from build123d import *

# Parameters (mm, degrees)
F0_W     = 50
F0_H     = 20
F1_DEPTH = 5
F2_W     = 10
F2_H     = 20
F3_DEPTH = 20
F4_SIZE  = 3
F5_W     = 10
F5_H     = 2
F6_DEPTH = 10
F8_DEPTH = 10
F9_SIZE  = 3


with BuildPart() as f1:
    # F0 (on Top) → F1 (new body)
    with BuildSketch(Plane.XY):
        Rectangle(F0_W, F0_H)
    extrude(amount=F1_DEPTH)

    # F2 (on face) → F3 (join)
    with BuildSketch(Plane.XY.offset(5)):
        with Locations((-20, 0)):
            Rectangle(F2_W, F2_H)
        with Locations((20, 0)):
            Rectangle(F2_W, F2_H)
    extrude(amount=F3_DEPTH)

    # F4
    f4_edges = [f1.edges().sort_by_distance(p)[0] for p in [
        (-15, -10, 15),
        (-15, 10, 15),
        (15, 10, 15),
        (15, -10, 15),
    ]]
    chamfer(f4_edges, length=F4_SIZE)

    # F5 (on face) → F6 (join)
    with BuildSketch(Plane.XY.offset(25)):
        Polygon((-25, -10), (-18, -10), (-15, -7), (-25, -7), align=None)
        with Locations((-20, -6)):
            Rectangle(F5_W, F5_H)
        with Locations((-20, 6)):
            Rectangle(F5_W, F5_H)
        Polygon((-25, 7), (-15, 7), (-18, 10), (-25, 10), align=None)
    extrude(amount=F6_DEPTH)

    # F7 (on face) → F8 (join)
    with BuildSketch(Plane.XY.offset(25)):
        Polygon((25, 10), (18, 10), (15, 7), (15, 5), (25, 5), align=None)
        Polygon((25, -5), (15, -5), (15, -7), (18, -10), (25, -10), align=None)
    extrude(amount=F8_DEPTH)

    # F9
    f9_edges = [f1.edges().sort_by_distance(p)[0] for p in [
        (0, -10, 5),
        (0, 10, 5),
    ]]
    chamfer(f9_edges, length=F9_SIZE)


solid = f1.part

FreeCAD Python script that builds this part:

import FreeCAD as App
import Part
import Sketcher

V = App.Vector


def edges_at(feature, points):
    """Names of the edges that pass closest to the given points."""
    edges = feature.Shape.Edges
    near = lambda p: min(range(len(edges)), key=lambda i: edges[i].distToShape(Part.Vertex(*p))[0])
    return sorted({f"Edge{near(p) + 1}" for p in points})

doc = App.newDocument("Part")
params = doc.addObject("Spreadsheet::Sheet", "Params")
for row, (alias, value) in enumerate([
    ("sketch1_width", "50 mm"),
    ("sketch1_height", "20 mm"),
    ("pad1_length", "5 mm"),
    ("sketch2_width", "10 mm"),
    ("sketch2_height", "20 mm"),
    ("pad2_length", "20 mm"),
    ("chamfer_size", "3 mm"),
    ("sketch3_width", "7 mm"),
    ("sketch3_width2", "10 mm"),
    ("sketch3_height", "2 mm"),
    ("pad3_length", "10 mm"),
    ("sketch4_width", "7 mm"),
    ("sketch4_width2", "10 mm"),
    ("sketch4_height", "2 mm"),
    ("pad4_length", "10 mm"),
    ("chamfer2_size", "3 mm"),
], start=1):
    params.set(f"A{row}", alias)
    params.set(f"B{row}", "=" + value)
    params.setAlias(f"B{row}", alias)

body = doc.addObject("PartDesign::Body", "Body")

sketch1 = body.newObject("Sketcher::SketchObject", "Sketch")
sketch1.AttachmentSupport = (doc.getObject("XY_Plane"), [""])
sketch1.MapMode = "FlatFace"
sketch1.addGeometry([
    Part.LineSegment(V(-25, 10, 0), V(-25, -10, 0)),
    Part.LineSegment(V(-25, -10, 0), V(25, -10, 0)),
    Part.LineSegment(V(25, -10, 0), V(25, 10, 0)),
    Part.LineSegment(V(25, 10, 0), V(-25, 10, 0)),
], False)
sketch1.addConstraint([
    Sketcher.Constraint("Coincident", 0, 2, 1, 1),
    Sketcher.Constraint("Coincident", 1, 2, 2, 1),
    Sketcher.Constraint("Coincident", 2, 2, 3, 1),
    Sketcher.Constraint("Coincident", 3, 2, 0, 1),
    Sketcher.Constraint("Vertical", 0),
    Sketcher.Constraint("Horizontal", 1),
    Sketcher.Constraint("Vertical", 2),
    Sketcher.Constraint("Horizontal", 3),
    Sketcher.Constraint("Symmetric", 0, 2, 2, 2, -1, 1),
    Sketcher.Constraint("DistanceX", 1, 1, 1, 2, 50.0),
    Sketcher.Constraint("DistanceY", 0, 2, 0, 1, 20.0),
])
sketch1.setExpression("Constraints[9]", "Params.sketch1_width")
sketch1.setExpression("Constraints[10]", "Params.sketch1_height")
pad1 = body.newObject("PartDesign::Pad", "Pad")
pad1.Profile = sketch1
pad1.setExpression("Length", "Params.pad1_length")

sketch2 = body.newObject("Sketcher::SketchObject", "Sketch001")
sketch2.AttachmentSupport = (doc.getObject("XY_Plane"), [""])
sketch2.MapMode = "FlatFace"
sketch2.AttachmentOffset = App.Placement(V(0, 0, 5), App.Rotation())
sketch2.addGeometry([
    Part.LineSegment(V(-25, 10, 0), V(-25, -10, 0)),
    Part.LineSegment(V(-25, -10, 0), V(-15, -10, 0)),
    Part.LineSegment(V(-15, -10, 0), V(-15, 10, 0)),
    Part.LineSegment(V(-15, 10, 0), V(-25, 10, 0)),
    Part.LineSegment(V(15, 10, 0), V(15, -10, 0)),
    Part.LineSegment(V(15, -10, 0), V(25, -10, 0)),
    Part.LineSegment(V(25, -10, 0), V(25, 10, 0)),
    Part.LineSegment(V(25, 10, 0), V(15, 10, 0)),
], False)
sketch2.addConstraint([
    Sketcher.Constraint("Coincident", 0, 2, 1, 1),
    Sketcher.Constraint("Coincident", 1, 2, 2, 1),
    Sketcher.Constraint("Coincident", 2, 2, 3, 1),
    Sketcher.Constraint("Coincident", 3, 2, 0, 1),
    Sketcher.Constraint("Coincident", 4, 2, 5, 1),
    Sketcher.Constraint("Coincident", 5, 2, 6, 1),
    Sketcher.Constraint("Coincident", 6, 2, 7, 1),
    Sketcher.Constraint("Coincident", 7, 2, 4, 1),
    Sketcher.Constraint("Vertical", 0),
    Sketcher.Constraint("Horizontal", 1),
    Sketcher.Constraint("Vertical", 2),
    Sketcher.Constraint("Horizontal", 3),
    Sketcher.Constraint("Vertical", 4),
    Sketcher.Constraint("Horizontal", 5),
    Sketcher.Constraint("Vertical", 6),
    Sketcher.Constraint("Horizontal", 7),
    Sketcher.Constraint("Symmetric", 2, 2, 4, 2, -1, 1),
    Sketcher.Constraint("Symmetric", 0, 2, 6, 2, -1, 1),
    Sketcher.Constraint("Horizontal", 1, 2, 4, 2),
    Sketcher.Constraint("DistanceX", 1, 1, 1, 2, 10.0),
    Sketcher.Constraint("DistanceY", 0, 2, 0, 1, 20.0),
    Sketcher.Constraint("DistanceX", 0, 2, -1, 1, 25.0),
])
sketch2.setExpression("Constraints[19]", "Params.sketch2_width")
sketch2.setExpression("Constraints[20]", "Params.sketch2_height")
pad2 = body.newObject("PartDesign::Pad", "Pad001")
pad2.Profile = sketch2
pad2.setExpression("Length", "Params.pad2_length")
doc.recompute()

chamfer = body.newObject("PartDesign::Chamfer", "Chamfer")
chamfer.Base = (pad2, edges_at(pad2, [
    (-15, -10, 15),
    (-15, 10, 15),
    (15, 10, 15),
    (15, -10, 15),
]))
chamfer.setExpression("Size", "Params.chamfer_size")

sketch3 = body.newObject("Sketcher::SketchObject", "Sketch002")
sketch3.AttachmentSupport = (doc.getObject("XY_Plane"), [""])
sketch3.MapMode = "FlatFace"
sketch3.AttachmentOffset = App.Placement(V(0, 0, 25), App.Rotation())
sketch3.addGeometry([
    Part.LineSegment(V(-25, -10, 0), V(-18, -10, 0)),
    Part.LineSegment(V(-18, -10, 0), V(-15, -7, 0)),
    Part.LineSegment(V(-15, -7, 0), V(-15, -5, 0)),
    Part.LineSegment(V(-15, -5, 0), V(-25, -5, 0)),
    Part.LineSegment(V(-25, -5, 0), V(-25, -10, 0)),
    Part.LineSegment(V(-25, 5, 0), V(-15, 5, 0)),
    Part.LineSegment(V(-15, 5, 0), V(-15, 7, 0)),
    Part.LineSegment(V(-15, 7, 0), V(-18, 10, 0)),
    Part.LineSegment(V(-18, 10, 0), V(-25, 10, 0)),
    Part.LineSegment(V(-25, 10, 0), V(-25, 5, 0)),
], False)
sketch3.addConstraint([
    Sketcher.Constraint("Coincident", 0, 2, 1, 1),
    Sketcher.Constraint("Coincident", 1, 2, 2, 1),
    Sketcher.Constraint("Coincident", 2, 2, 3, 1),
    Sketcher.Constraint("Coincident", 3, 2, 4, 1),
    Sketcher.Constraint("Coincident", 4, 2, 0, 1),
    Sketcher.Constraint("Coincident", 5, 2, 6, 1),
    Sketcher.Constraint("Coincident", 6, 2, 7, 1),
    Sketcher.Constraint("Coincident", 7, 2, 8, 1),
    Sketcher.Constraint("Coincident", 8, 2, 9, 1),
    Sketcher.Constraint("Coincident", 9, 2, 5, 1),
    Sketcher.Constraint("Horizontal", 0),
    Sketcher.Constraint("Vertical", 2),
    Sketcher.Constraint("Horizontal", 3),
    Sketcher.Constraint("Vertical", 4),
    Sketcher.Constraint("Horizontal", 5),
    Sketcher.Constraint("Vertical", 6),
    Sketcher.Constraint("Horizontal", 8),
    Sketcher.Constraint("Vertical", 9),
    Sketcher.Constraint("Symmetric", 2, 2, 5, 2, -1),
    Sketcher.Constraint("Symmetric", 0, 2, 7, 2, -1),
    Sketcher.Constraint("Perpendicular", 1, 7),
    Sketcher.Constraint("Vertical", 4, 2, 8, 2),
    Sketcher.Constraint("Equal", 2, 6),
    Sketcher.Constraint("DistanceX", 0, 1, 0, 2, 7.0),
    Sketcher.Constraint("DistanceX", 3, 2, 3, 1, 10.0),
    Sketcher.Constraint("DistanceY", 2, 1, 2, 2, 2.0),
    Sketcher.Constraint("DistanceX", 0, 2, -1, 1, 18.0),
    Sketcher.Constraint("DistanceY", 0, 2, -1, 1, 10.0),
])
sketch3.setExpression("Constraints[23]", "Params.sketch3_width")
sketch3.setExpression("Constraints[24]", "Params.sketch3_width2")
sketch3.setExpression("Constraints[25]", "Params.sketch3_height")
pad3 = body.newObject("PartDesign::Pad", "Pad002")
pad3.Profile = sketch3
pad3.setExpression("Length", "Params.pad3_length")

sketch4 = body.newObject("Sketcher::SketchObject", "Sketch003")
sketch4.AttachmentSupport = (doc.getObject("XY_Plane"), [""])
sketch4.MapMode = "FlatFace"
sketch4.AttachmentOffset = App.Placement(V(0, 0, 25), App.Rotation())
sketch4.addGeometry([
    Part.LineSegment(V(25, 10, 0), V(18, 10, 0)),
    Part.LineSegment(V(18, 10, 0), V(15, 7, 0)),
    Part.LineSegment(V(15, 7, 0), V(15, 5, 0)),
    Part.LineSegment(V(15, 5, 0), V(25, 5, 0)),
    Part.LineSegment(V(25, 5, 0), V(25, 10, 0)),
    Part.LineSegment(V(25, -5, 0), V(15, -5, 0)),
    Part.LineSegment(V(15, -5, 0), V(15, -7, 0)),
    Part.LineSegment(V(15, -7, 0), V(18, -10, 0)),
    Part.LineSegment(V(18, -10, 0), V(25, -10, 0)),
    Part.LineSegment(V(25, -10, 0), V(25, -5, 0)),
], False)
sketch4.addConstraint([
    Sketcher.Constraint("Coincident", 0, 2, 1, 1),
    Sketcher.Constraint("Coincident", 1, 2, 2, 1),
    Sketcher.Constraint("Coincident", 2, 2, 3, 1),
    Sketcher.Constraint("Coincident", 3, 2, 4, 1),
    Sketcher.Constraint("Coincident", 4, 2, 0, 1),
    Sketcher.Constraint("Coincident", 5, 2, 6, 1),
    Sketcher.Constraint("Coincident", 6, 2, 7, 1),
    Sketcher.Constraint("Coincident", 7, 2, 8, 1),
    Sketcher.Constraint("Coincident", 8, 2, 9, 1),
    Sketcher.Constraint("Coincident", 9, 2, 5, 1),
    Sketcher.Constraint("Horizontal", 0),
    Sketcher.Constraint("Vertical", 2),
    Sketcher.Constraint("Horizontal", 3),
    Sketcher.Constraint("Vertical", 4),
    Sketcher.Constraint("Horizontal", 5),
    Sketcher.Constraint("Vertical", 6),
    Sketcher.Constraint("Horizontal", 8),
    Sketcher.Constraint("Vertical", 9),
    Sketcher.Constraint("Symmetric", 2, 2, 5, 2, -1),
    Sketcher.Constraint("Symmetric", 0, 2, 7, 2, -1),
    Sketcher.Constraint("Perpendicular", 1, 7),
    Sketcher.Constraint("Vertical", 4, 2, 8, 2),
    Sketcher.Constraint("Equal", 2, 6),
    Sketcher.Constraint("DistanceX", 0, 2, 0, 1, 7.0),
    Sketcher.Constraint("DistanceX", 3, 1, 3, 2, 10.0),
    Sketcher.Constraint("DistanceY", 2, 2, 2, 1, 2.0),
    Sketcher.Constraint("DistanceX", -1, 1, 0, 2, 18.0),
    Sketcher.Constraint("DistanceY", -1, 1, 0, 2, 10.0),
])
sketch4.setExpression("Constraints[23]", "Params.sketch4_width")
sketch4.setExpression("Constraints[24]", "Params.sketch4_width2")
sketch4.setExpression("Constraints[25]", "Params.sketch4_height")
pad4 = body.newObject("PartDesign::Pad", "Pad003")
pad4.Profile = sketch4
pad4.setExpression("Length", "Params.pad4_length")
doc.recompute()

chamfer2 = body.newObject("PartDesign::Chamfer", "Chamfer001")
chamfer2.Base = (pad4, edges_at(pad4, [(0, -10, 5), (0, 10, 5)]))
chamfer2.setExpression("Size", "Params.chamfer2_size")

doc.recompute()
